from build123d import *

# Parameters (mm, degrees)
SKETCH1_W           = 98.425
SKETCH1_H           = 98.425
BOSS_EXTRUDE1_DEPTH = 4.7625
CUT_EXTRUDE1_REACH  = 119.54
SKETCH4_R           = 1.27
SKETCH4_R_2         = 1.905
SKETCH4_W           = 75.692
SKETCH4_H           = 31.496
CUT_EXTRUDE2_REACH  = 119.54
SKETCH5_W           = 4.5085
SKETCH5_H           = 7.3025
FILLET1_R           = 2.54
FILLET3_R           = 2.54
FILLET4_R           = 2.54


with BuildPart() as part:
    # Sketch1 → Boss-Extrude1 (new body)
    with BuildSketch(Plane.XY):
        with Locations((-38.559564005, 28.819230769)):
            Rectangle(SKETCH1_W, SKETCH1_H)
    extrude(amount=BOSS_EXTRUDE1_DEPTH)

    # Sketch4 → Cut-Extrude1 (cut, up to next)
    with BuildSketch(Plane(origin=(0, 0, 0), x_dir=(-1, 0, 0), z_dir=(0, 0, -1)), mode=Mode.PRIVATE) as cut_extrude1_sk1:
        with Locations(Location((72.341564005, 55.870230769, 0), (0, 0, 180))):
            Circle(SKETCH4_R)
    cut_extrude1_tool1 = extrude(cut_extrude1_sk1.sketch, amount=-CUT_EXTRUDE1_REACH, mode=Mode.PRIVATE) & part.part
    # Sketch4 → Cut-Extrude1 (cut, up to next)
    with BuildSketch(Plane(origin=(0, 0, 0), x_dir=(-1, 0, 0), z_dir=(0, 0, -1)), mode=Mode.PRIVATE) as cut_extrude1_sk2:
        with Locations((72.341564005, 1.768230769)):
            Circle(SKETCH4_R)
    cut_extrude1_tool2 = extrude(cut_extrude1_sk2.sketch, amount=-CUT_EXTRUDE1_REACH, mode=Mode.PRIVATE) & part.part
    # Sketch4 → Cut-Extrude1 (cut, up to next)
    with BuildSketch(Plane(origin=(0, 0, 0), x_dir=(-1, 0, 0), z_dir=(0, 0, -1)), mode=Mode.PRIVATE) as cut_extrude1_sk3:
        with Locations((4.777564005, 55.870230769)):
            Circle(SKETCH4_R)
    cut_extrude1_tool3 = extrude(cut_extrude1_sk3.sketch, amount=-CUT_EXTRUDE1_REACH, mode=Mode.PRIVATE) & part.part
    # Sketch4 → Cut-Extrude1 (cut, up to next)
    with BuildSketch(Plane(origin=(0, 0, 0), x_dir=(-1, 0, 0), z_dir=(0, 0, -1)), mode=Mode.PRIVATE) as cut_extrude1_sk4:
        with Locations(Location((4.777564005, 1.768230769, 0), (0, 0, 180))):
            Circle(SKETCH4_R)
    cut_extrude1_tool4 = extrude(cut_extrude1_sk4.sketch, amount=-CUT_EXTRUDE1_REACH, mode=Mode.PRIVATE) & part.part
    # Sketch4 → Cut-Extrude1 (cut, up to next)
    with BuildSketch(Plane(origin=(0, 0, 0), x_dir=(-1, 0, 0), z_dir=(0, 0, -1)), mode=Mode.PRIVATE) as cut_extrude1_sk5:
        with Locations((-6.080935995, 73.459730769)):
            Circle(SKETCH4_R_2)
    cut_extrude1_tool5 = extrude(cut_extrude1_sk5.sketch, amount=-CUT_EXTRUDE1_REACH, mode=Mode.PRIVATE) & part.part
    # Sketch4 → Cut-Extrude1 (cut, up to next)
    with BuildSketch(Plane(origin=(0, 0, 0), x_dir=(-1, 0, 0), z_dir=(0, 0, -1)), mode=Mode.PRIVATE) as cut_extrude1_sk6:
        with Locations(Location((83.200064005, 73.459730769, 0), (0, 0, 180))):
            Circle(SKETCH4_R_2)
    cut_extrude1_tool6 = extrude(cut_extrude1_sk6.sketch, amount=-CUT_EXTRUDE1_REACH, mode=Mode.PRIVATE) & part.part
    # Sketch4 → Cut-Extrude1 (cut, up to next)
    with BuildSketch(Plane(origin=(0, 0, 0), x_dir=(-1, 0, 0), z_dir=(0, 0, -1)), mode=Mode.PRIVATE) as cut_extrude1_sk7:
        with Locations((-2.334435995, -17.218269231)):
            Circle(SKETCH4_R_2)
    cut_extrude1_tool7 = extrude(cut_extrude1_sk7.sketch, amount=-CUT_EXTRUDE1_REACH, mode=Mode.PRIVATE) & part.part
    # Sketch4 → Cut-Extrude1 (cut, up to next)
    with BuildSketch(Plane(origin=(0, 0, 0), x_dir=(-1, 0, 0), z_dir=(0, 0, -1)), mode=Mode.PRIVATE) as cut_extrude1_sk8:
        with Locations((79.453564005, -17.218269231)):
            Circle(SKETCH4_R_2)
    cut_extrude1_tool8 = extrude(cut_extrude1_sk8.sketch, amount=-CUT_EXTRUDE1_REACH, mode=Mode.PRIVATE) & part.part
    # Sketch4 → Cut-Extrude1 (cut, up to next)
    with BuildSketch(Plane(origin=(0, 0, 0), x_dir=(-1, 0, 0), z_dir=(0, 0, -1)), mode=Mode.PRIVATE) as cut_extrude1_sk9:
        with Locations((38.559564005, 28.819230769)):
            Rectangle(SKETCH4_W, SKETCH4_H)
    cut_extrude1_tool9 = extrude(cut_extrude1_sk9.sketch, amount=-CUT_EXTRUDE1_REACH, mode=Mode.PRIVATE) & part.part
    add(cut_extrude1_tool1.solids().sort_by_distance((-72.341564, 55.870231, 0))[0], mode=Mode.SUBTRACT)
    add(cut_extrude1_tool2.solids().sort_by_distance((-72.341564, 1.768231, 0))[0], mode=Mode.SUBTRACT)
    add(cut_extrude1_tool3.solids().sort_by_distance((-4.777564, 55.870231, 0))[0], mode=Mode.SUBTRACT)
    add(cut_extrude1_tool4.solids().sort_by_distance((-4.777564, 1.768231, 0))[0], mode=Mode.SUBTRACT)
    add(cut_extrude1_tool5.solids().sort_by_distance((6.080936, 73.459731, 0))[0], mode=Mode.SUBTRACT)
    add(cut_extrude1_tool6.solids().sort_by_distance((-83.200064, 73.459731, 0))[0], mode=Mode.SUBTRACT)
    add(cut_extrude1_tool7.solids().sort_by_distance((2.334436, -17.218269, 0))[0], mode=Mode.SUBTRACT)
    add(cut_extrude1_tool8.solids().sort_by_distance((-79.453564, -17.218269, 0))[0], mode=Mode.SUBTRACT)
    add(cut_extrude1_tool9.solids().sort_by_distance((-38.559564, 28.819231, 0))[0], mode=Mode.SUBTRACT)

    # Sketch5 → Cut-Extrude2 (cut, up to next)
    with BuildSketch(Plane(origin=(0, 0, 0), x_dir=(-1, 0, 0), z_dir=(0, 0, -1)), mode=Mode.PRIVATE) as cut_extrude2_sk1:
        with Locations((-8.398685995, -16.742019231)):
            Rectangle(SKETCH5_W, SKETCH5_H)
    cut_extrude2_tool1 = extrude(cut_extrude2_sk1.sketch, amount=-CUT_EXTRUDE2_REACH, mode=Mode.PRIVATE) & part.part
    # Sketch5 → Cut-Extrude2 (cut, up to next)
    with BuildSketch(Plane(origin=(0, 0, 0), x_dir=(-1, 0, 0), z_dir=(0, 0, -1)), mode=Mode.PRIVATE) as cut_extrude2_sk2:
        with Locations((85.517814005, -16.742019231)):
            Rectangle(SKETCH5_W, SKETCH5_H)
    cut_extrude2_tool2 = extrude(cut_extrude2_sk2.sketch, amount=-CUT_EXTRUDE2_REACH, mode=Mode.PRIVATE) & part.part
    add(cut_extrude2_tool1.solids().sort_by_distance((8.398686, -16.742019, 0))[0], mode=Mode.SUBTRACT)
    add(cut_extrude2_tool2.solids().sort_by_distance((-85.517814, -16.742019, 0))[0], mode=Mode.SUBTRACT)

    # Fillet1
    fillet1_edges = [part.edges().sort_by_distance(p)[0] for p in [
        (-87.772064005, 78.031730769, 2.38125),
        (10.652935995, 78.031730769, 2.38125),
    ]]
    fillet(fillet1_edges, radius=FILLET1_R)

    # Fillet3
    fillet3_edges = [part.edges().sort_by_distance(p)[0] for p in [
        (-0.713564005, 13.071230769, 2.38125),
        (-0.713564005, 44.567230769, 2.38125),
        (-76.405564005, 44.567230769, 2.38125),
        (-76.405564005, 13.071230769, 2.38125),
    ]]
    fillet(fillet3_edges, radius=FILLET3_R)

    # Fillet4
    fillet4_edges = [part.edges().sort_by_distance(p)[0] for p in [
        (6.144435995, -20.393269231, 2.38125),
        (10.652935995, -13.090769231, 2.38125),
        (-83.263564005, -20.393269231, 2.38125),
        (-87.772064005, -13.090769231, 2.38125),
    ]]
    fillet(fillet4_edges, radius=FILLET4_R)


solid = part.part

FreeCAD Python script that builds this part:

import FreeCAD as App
import Part
import Sketcher
Q = App.Units.Quantity


def edges_at(feature, points):
    """Names of the edges that pass closest to the given points."""
    edges = feature.Shape.Edges
    near = lambda p: min(range(len(edges)), key=lambda i: edges[i].distToShape(Part.Vertex(*p))[0])
    return sorted({f"Edge{near(p) + 1}" for p in points})


def add_polygon(sketch, points):
    """Adds a closed chain of lines whose ends are joined by coincident constraints."""
    first, n = sketch.GeometryCount, len(points)
    for a, b in zip(points, points[1:] + points[:1]):
        sketch.addGeometry(Part.LineSegment(App.Vector(*a, 0), App.Vector(*b, 0)), False)
    for i in range(n):
        sketch.addConstraint(Sketcher.Constraint("Coincident", first + i, 2, first + (i + 1) % n, 1))

doc = App.newDocument("Part")
body = doc.addObject("PartDesign::Body", "Body")

sketch1 = body.newObject("Sketcher::SketchObject", "Sketch")
sketch1.AttachmentSupport = (doc.getObject("XY_Plane"), [""])
sketch1.MapMode = "FlatFace"
add_polygon(sketch1, [(-88, 78), (-88, -20), (11, -20), (11, 78)])
sketch1.addConstraint([
    Sketcher.Constraint("Vertical", 0),
    Sketcher.Constraint("Horizontal", 1),
    Sketcher.Constraint("Vertical", 2),
    Sketcher.Constraint("Horizontal", 3),
    Sketcher.Constraint("Equal", 3, 0),
    Sketcher.Constraint("DistanceX", 1, 1, 1, 2, Q("3.875 in")),
    Sketcher.Constraint("DistanceY", 0, 2, -1, 1, 20.393269),
    Sketcher.Constraint("DistanceX", 0, 2, -1, 1, 87.772064),
])
pad1 = body.newObject("PartDesign::Pad", "Pad")
pad1.Profile = sketch1
pad1.Length = Q("0.1875 in")

sketch2 = body.newObject("Sketcher::SketchObject", "Sketch001")
sketch2.AttachmentSupport = (doc.getObject("XY_Plane"), [""])
sketch2.MapMode = "FlatFace"
sketch2.addGeometry(Part.Circle(App.Vector(-72.3, 55.9, 0), App.Vector(0, 0, 1), 1.3), False)
sketch2.addConstraint([
    Sketcher.Constraint("Diameter", 0, Q("0.1 in")),
    Sketcher.Constraint("DistanceY", -1, 1, 0, 3, 55.870231),
    Sketcher.Constraint("DistanceX", 0, 3, -1, 1, 72.341564),
])
pocket1 = body.newObject("PartDesign::Pocket", "Pocket")
pocket1.Profile = sketch2
pocket1.Type = "UpToFirst"
pocket1.Reversed = True

sketch3 = body.newObject("Sketcher::SketchObject", "Sketch002")
sketch3.AttachmentSupport = (doc.getObject("XY_Plane"), [""])
sketch3.MapMode = "FlatFace"
sketch3.addGeometry(Part.Circle(App.Vector(-72.3, 1.8, 0), App.Vector(0, 0, 1), 1.3), False)
sketch3.addConstraint([
    Sketcher.Constraint("Diameter", 0, Q("0.1 in")),
    Sketcher.Constraint("DistanceY", -1, 1, 0, 3, 1.768231),
    Sketcher.Constraint("DistanceX", 0, 3, -1, 1, 72.341564),
])
pocket2 = body.newObject("PartDesign::Pocket", "Pocket001")
pocket2.Profile = sketch3
pocket2.Type = "UpToFirst"
pocket2.Reversed = True

sketch4 = body.newObject("Sketcher::SketchObject", "Sketch003")
sketch4.AttachmentSupport = (doc.getObject("XY_Plane"), [""])
sketch4.MapMode = "FlatFace"
sketch4.addGeometry(Part.Circle(App.Vector(-4.8, 55.9, 0), App.Vector(0, 0, 1), 1.3), False)
sketch4.addConstraint([
    Sketcher.Constraint("Diameter", 0, Q("0.1 in")),
    Sketcher.Constraint("DistanceY", -1, 1, 0, 3, 55.870231),
    Sketcher.Constraint("DistanceX", 0, 3, -1, 1, 4.777564),
])
pocket3 = body.newObject("PartDesign::Pocket", "Pocket002")
pocket3.Profile = sketch4
pocket3.Type = "UpToFirst"
pocket3.Reversed = True

sketch5 = body.newObject("Sketcher::SketchObject", "Sketch004")
sketch5.AttachmentSupport = (doc.getObject("XY_Plane"), [""])
sketch5.MapMode = "FlatFace"
sketch5.addGeometry(Part.Circle(App.Vector(-4.8, 1.8, 0), App.Vector(0, 0, 1), 1.3), False)
sketch5.addConstraint([
    Sketcher.Constraint("Diameter", 0, Q("0.1 in")),
    Sketcher.Constraint("DistanceY", -1, 1, 0, 3, 1.768231),
    Sketcher.Constraint("DistanceX", 0, 3, -1, 1, 4.777564),
])
pocket4 = body.newObject("PartDesign::Pocket", "Pocket003")
pocket4.Profile = sketch5
pocket4.Type = "UpToFirst"
pocket4.Reversed = True

sketch6 = body.newObject("Sketcher::SketchObject", "Sketch005")
sketch6.AttachmentSupport = (doc.getObject("XY_Plane"), [""])
sketch6.MapMode = "FlatFace"
sketch6.addGeometry(Part.Circle(App.Vector(6.1, 73.5, 0), App.Vector(0, 0, 1), 1.9), False)
sketch6.addConstraint([
    Sketcher.Constraint("Diameter", 0, Q("0.15 in")),
    Sketcher.Constraint("DistanceY", -1, 1, 0, 3, 73.459731),
    Sketcher.Constraint("DistanceX", -1, 1, 0, 3, 6.080936),
])
pocket5 = body.newObject("PartDesign::Pocket", "Pocket004")
pocket5.Profile = sketch6
pocket5.Type = "UpToFirst"
pocket5.Reversed = True

sketch7 = body.newObject("Sketcher::SketchObject", "Sketch006")
sketch7.AttachmentSupport = (doc.getObject("XY_Plane"), [""])
sketch7.MapMode = "FlatFace"
sketch7.addGeometry(Part.Circle(App.Vector(-83.2, 73.5, 0), App.Vector(0, 0, 1), 1.9), False)
sketch7.addConstraint([
    Sketcher.Constraint("Diameter", 0, Q("0.15 in")),
    Sketcher.Constraint("DistanceY", -1, 1, 0, 3, 73.459731),
    Sketcher.Constraint("DistanceX", 0, 3, -1, 1, 83.200064),
])
pocket6 = body.newObject("PartDesign::Pocket", "Pocket005")
pocket6.Profile = sketch7
pocket6.Type = "UpToFirst"
pocket6.Reversed = True

sketch8 = body.newObject("Sketcher::SketchObject", "Sketch007")
sketch8.AttachmentSupport = (doc.getObject("XY_Plane"), [""])
sketch8.MapMode = "FlatFace"
sketch8.addGeometry(Part.Circle(App.Vector(2.3, -17.2, 0), App.Vector(0, 0, 1), 1.9), False)
sketch8.addConstraint([
    Sketcher.Constraint("Diameter", 0, Q("0.15 in")),
    Sketcher.Constraint("DistanceY", 0, 3, -1, 1, 17.218269),
    Sketcher.Constraint("DistanceX", -1, 1, 0, 3, 2.334436),
])
pocket7 = body.newObject("PartDesign::Pocket", "Pocket006")
pocket7.Profile = sketch8
pocket7.Type = "UpToFirst"
pocket7.Reversed = True

sketch9 = body.newObject("Sketcher::SketchObject", "Sketch008")
sketch9.AttachmentSupport = (doc.getObject("XY_Plane"), [""])
sketch9.MapMode = "FlatFace"
sketch9.addGeometry(Part.Circle(App.Vector(-79.5, -17.2, 0), App.Vector(0, 0, 1), 1.9), False)
sketch9.addConstraint([
    Sketcher.Constraint("Diameter", 0, Q("0.15 in")),
    Sketcher.Constraint("DistanceY", 0, 3, -1, 1, 17.218269),
    Sketcher.Constraint("DistanceX", 0, 3, -1, 1, 79.453564),
])
pocket8 = body.newObject("PartDesign::Pocket", "Pocket007")
pocket8.Profile = sketch9
pocket8.Type = "UpToFirst"
pocket8.Reversed = True

sketch10 = body.newObject("Sketcher::SketchObject", "Sketch009")
sketch10.AttachmentSupport = (doc.getObject("XY_Plane"), [""])
sketch10.MapMode = "FlatFace"
add_polygon(sketch10, [(-1, 45), (-1, 13), (-76, 13), (-76, 45)])
sketch10.addConstraint([
    Sketcher.Constraint("Vertical", 0),
    Sketcher.Constraint("Horizontal", 1),
    Sketcher.Constraint("Vertical", 2),
    Sketcher.Constraint("Horizontal", 3),
    Sketcher.Constraint("DistanceX", 1, 2, 1, 1, Q("2.98 in")),
    Sketcher.Constraint("DistanceY", 0, 2, 0, 1, Q("1.24 in")),
    Sketcher.Constraint("DistanceY", -1, 1, 0, 2, 13.071231),
    Sketcher.Constraint("DistanceX", 0, 2, -1, 1, 0.713564),
])
pocket9 = body.newObject("PartDesign::Pocket", "Pocket008")
pocket9.Profile = sketch10
pocket9.Type = "UpToFirst"
pocket9.Reversed = True

sketch11 = body.newObject("Sketcher::SketchObject", "Sketch010")
sketch11.AttachmentSupport = (doc.getObject("XY_Plane"), [""])
sketch11.MapMode = "FlatFace"
add_polygon(sketch11, [(10.7, -13.1), (10.7, -20.4), (6.1, -20.4), (6.1, -13.1)])
sketch11.addConstraint([
    Sketcher.Constraint("Vertical", 0),
    Sketcher.Constraint("Horizontal", 1),
    Sketcher.Constraint("Vertical", 2),
    Sketcher.Constraint("Horizontal", 3),
    Sketcher.Constraint("DistanceX", 1, 2, 1, 1, Q("0.1775 in")),
    Sketcher.Constraint("DistanceY", 0, 2, 0, 1, Q("0.2875 in")),
    Sketcher.Constraint("DistanceY", 0, 2, -1, 1, 20.393269),
    Sketcher.Constraint("DistanceX", -1, 1, 0, 2, 10.652936),
])
pocket10 = body.newObject("PartDesign::Pocket", "Pocket009")
pocket10.Profile = sketch11
pocket10.Type = "UpToFirst"
pocket10.Reversed = True

sketch12 = body.newObject("Sketcher::SketchObject", "Sketch011")
sketch12.AttachmentSupport = (doc.getObject("XY_Plane"), [""])
sketch12.MapMode = "FlatFace"
add_polygon(sketch12, [(-83.3, -13.1), (-83.3, -20.4), (-87.8, -20.4), (-87.8, -13.1)])
sketch12.addConstraint([
    Sketcher.Constraint("Vertical", 0),
    Sketcher.Constraint("Horizontal", 1),
    Sketcher.Constraint("Vertical", 2),
    Sketcher.Constraint("Horizontal", 3),
    Sketcher.Constraint("DistanceX", 1, 2, 1, 1, Q("0.1775 in")),
    Sketcher.Constraint("DistanceY", 0, 2, 0, 1, Q("0.2875 in")),
    Sketcher.Constraint("DistanceY", 0, 2, -1, 1, 20.393269),
    Sketcher.Constraint("DistanceX", 0, 2, -1, 1, 83.263564),
])
pocket11 = body.newObject("PartDesign::Pocket", "Pocket010")
pocket11.Profile = sketch12
pocket11.Type = "UpToFirst"
pocket11.Reversed = True
doc.recompute()

fillet = body.newObject("PartDesign::Fillet", "Fillet")
fillet.Base = (pocket11, edges_at(pocket11, [(-87.772, 78.032, 2.381), (10.653, 78.032, 2.381)]))
fillet.Radius = Q("0.1 in")
doc.recompute()

fillet2 = body.newObject("PartDesign::Fillet", "Fillet001")
fillet2.Base = (fillet, edges_at(fillet, [
    (-0.714, 13.071, 2.381),
    (-0.714, 44.567, 2.381),
    (-76.406, 44.567, 2.381),
    (-76.406, 13.071, 2.381),
]))
fillet2.Radius = Q("0.1 in")
doc.recompute()

fillet3 = body.newObject("PartDesign::Fillet", "Fillet002")
fillet3.Base = (fillet2, edges_at(fillet2, [
    (6.144, -20.393, 2.381),
    (10.653, -13.091, 2.381),
    (-83.264, -20.393, 2.381),
    (-87.772, -13.091, 2.381),
]))
fillet3.Radius = Q("0.1 in")

doc.recompute()
